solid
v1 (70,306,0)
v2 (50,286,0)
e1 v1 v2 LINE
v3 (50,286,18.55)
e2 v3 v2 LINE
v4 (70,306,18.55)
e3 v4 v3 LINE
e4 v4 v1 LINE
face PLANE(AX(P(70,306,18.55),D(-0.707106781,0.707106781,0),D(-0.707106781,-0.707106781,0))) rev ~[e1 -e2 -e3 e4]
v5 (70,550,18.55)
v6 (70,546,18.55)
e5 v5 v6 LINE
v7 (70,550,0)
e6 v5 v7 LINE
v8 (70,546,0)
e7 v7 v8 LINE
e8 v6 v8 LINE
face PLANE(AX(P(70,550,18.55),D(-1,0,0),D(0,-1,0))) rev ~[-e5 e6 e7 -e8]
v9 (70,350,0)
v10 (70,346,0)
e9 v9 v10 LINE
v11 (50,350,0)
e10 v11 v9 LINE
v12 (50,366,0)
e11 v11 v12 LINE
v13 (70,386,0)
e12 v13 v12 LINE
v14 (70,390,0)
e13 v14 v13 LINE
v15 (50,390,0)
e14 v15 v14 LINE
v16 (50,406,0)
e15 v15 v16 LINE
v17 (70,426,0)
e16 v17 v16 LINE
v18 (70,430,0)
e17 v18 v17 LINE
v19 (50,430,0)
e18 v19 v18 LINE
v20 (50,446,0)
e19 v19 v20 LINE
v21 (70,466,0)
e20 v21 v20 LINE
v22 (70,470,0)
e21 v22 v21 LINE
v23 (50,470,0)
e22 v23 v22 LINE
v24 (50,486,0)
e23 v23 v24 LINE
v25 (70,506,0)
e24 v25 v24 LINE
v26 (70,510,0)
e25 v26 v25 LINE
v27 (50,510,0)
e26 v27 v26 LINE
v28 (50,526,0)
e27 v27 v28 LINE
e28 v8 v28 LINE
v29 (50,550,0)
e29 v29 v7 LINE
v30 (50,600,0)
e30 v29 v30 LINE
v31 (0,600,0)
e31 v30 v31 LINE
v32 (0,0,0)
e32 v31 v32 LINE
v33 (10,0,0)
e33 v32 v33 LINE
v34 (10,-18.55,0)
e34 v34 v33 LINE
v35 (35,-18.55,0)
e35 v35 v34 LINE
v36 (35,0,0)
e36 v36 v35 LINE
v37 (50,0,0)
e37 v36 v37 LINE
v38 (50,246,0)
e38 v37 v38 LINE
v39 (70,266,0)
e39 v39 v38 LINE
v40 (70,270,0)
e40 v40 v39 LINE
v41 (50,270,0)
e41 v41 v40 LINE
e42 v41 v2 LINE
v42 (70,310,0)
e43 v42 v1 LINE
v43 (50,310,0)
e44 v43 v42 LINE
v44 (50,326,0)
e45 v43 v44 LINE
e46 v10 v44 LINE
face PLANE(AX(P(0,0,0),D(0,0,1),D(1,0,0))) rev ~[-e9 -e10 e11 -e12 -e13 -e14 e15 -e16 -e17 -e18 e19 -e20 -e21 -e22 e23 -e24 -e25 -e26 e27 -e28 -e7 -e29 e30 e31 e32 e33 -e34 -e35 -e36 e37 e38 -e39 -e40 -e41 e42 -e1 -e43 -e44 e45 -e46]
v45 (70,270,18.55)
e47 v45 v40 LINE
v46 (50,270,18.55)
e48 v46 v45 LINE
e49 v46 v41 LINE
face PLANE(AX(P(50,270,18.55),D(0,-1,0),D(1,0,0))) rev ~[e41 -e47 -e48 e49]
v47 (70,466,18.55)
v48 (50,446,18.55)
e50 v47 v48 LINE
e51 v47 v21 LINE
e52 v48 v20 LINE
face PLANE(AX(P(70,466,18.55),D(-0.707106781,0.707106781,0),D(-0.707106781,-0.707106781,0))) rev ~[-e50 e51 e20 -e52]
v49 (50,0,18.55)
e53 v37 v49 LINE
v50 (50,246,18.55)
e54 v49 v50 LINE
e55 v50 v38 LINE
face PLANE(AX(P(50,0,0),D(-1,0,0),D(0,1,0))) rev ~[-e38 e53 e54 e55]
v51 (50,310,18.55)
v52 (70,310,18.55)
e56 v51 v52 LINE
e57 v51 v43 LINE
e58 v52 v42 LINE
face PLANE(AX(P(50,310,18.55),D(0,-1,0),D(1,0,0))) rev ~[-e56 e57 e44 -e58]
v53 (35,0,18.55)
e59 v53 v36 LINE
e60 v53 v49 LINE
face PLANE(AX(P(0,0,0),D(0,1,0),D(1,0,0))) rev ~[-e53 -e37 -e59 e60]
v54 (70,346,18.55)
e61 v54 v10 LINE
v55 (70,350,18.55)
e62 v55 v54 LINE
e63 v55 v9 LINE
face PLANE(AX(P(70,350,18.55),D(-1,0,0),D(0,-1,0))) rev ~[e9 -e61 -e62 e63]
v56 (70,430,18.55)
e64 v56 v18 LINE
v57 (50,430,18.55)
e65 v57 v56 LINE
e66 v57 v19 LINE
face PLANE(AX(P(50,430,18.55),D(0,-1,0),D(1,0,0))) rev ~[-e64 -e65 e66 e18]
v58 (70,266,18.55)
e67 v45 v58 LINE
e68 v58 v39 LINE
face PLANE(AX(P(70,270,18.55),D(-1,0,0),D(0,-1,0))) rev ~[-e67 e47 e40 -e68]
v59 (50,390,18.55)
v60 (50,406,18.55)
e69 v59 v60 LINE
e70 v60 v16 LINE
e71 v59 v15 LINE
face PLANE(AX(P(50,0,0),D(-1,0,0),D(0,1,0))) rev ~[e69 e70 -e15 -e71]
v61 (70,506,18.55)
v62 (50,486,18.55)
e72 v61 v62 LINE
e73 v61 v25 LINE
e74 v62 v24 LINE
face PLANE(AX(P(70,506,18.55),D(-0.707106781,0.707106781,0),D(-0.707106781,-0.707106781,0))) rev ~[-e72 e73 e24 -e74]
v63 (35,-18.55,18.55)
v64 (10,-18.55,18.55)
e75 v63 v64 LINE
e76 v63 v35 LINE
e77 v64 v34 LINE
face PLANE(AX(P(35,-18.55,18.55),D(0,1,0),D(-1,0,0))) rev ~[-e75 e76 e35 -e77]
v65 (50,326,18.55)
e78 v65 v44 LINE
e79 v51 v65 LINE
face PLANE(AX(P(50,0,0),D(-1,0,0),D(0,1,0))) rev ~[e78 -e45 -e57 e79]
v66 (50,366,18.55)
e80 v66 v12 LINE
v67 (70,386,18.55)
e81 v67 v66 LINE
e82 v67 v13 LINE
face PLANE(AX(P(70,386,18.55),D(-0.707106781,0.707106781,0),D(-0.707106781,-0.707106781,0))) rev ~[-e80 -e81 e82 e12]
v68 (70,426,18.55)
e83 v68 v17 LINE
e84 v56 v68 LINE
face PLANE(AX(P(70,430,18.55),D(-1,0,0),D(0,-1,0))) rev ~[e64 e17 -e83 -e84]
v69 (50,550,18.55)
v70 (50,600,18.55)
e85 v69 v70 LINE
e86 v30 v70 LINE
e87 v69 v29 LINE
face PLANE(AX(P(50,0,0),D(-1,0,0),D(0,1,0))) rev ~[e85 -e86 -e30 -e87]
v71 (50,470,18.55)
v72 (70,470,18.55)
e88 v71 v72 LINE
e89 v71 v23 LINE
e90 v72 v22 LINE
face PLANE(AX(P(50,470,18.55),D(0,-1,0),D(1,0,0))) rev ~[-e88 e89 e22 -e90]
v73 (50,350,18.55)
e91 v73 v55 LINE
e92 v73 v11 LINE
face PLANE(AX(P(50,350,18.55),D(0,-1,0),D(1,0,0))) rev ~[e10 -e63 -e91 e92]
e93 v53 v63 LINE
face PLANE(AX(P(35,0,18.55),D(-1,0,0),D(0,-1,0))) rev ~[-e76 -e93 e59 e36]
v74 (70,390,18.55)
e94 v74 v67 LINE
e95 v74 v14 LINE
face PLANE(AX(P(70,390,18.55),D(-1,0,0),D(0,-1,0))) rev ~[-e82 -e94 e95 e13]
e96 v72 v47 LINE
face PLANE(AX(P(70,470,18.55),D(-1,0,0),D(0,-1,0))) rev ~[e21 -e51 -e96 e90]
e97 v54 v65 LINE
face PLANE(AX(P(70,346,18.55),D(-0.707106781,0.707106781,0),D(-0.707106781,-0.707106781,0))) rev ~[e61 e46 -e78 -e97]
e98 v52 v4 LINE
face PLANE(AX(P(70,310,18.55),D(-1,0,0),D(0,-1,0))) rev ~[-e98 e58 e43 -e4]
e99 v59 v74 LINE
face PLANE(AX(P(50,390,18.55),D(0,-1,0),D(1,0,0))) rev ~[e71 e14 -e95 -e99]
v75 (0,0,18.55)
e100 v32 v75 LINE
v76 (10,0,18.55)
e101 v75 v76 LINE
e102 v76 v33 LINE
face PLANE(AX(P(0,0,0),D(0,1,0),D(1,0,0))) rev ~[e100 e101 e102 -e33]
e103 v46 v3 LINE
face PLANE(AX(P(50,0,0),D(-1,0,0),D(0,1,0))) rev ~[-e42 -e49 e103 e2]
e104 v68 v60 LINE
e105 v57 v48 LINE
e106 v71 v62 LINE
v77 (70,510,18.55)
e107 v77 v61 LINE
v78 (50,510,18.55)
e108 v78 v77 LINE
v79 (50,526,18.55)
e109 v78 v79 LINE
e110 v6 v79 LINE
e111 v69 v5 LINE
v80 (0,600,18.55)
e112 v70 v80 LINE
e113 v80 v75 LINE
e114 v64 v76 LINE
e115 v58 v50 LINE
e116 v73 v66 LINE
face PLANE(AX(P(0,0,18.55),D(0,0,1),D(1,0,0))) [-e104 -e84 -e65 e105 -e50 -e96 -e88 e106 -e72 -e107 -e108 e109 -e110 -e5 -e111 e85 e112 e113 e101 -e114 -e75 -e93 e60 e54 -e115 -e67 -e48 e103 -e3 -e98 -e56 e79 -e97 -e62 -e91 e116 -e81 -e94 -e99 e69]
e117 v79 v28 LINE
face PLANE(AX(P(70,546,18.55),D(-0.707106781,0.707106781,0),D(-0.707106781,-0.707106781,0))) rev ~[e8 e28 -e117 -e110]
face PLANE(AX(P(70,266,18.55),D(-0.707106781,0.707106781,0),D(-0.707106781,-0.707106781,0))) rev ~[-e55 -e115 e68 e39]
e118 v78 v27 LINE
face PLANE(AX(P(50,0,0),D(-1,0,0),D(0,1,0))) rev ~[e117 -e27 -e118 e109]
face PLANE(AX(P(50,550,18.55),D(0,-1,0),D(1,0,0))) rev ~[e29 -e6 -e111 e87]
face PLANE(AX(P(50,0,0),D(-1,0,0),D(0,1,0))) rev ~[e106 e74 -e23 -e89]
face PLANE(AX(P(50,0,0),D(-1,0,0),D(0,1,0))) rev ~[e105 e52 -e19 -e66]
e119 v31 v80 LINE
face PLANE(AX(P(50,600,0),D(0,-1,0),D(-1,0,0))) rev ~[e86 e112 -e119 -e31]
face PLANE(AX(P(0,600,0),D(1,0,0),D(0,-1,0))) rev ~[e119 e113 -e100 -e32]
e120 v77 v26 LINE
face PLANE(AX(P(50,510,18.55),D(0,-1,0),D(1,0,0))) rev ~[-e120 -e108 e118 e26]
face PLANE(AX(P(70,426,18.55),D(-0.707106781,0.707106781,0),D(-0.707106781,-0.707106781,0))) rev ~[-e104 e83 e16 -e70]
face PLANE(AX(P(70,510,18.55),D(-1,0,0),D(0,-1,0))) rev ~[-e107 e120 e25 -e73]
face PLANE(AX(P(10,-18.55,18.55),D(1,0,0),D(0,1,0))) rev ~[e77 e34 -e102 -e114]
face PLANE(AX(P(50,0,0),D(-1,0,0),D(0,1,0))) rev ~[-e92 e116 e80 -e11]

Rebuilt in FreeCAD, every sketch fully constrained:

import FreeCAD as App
import Part
import Sketcher
Q = App.Units.Quantity


def add_polygon(sketch, points):
    """Adds a closed chain of lines whose ends are joined by coincident constraints."""
    first, n = sketch.GeometryCount, len(points)
    for a, b in zip(points, points[1:] + points[:1]):
        sketch.addGeometry(Part.LineSegment(App.Vector(*a, 0), App.Vector(*b, 0)), False)
    for i in range(n):
        sketch.addConstraint(Sketcher.Constraint("Coincident", first + i, 2, first + (i + 1) % n, 1))

doc = App.newDocument("Part")
params = doc.addObject("Spreadsheet::Sheet", "Params")
for row, (alias, value) in enumerate([
    ("sketch1_width", "50 mm"),
    ("sketch1_height", "600 mm"),
    ("pad1_length", "18.55 mm"),
    ("sketch2_width", "20 mm"),
    ("sketch2_width2", "25 mm"),
    ("sketch2_height", "4 mm"),
    ("sketch2_height2", "18.55 mm"),
    ("pad2_length", "18.55 mm"),
], start=1):
    params.set(f"A{row}", alias)
    params.set(f"B{row}", "=" + value)
    params.setAlias(f"B{row}", alias)

body = doc.addObject("PartDesign::Body", "Body")

# Sketch on XY plane
sketch1 = body.newObject("Sketcher::SketchObject", "Sketch")
sketch1.AttachmentSupport = (doc.getObject("XY_Plane"), [""])
sketch1.MapMode = "FlatFace"
add_polygon(sketch1, [(0, 600), (0, 0), (50, 0), (50, 600)])  # lines 0-3
sketch1.addConstraint(Sketcher.Constraint("Vertical", 0))
sketch1.addConstraint(Sketcher.Constraint("Horizontal", 1))
sketch1.addConstraint(Sketcher.Constraint("Vertical", 2))
sketch1.addConstraint(Sketcher.Constraint("Horizontal", 3))
sketch1.addConstraint(Sketcher.Constraint("Coincident", 0, 2, -1, 1))
sketch1.addConstraint(Sketcher.Constraint("DistanceX", 1, 1, 1, 2, 50.0))
sketch1.addConstraint(Sketcher.Constraint("DistanceY", 0, 2, 0, 1, 600.0))
sketch1.setExpression("Constraints[9]", "Params.sketch1_width")
sketch1.setExpression("Constraints[10]", "Params.sketch1_height")
pad1 = body.newObject("PartDesign::Pad", "Pad")
pad1.Profile = sketch1
pad1.setExpression("Length", "Params.pad1_length")

# Sketch on XY plane
sketch2 = body.newObject("Sketcher::SketchObject", "Sketch001")
sketch2.AttachmentSupport = (doc.getObject("XY_Plane"), [""])
sketch2.MapMode = "FlatFace"
sketch2.AttachmentOffset = App.Placement(App.Vector(0, 0, 18.55), App.Rotation())
add_polygon(sketch2, [(50, 270), (50, 246), (70, 266), (70, 270)])  # lines 0-3
add_polygon(sketch2, [(35, -18.6), (35, 0), (10, 0), (10, -18.6)])  # lines 4-7
add_polygon(sketch2, [(50, 310), (50, 286), (70, 306), (70, 310)])  # lines 8-11
add_polygon(sketch2, [(50, 350), (50, 326), (70, 346), (70, 350)])  # lines 12-15
add_polygon(sketch2, [(70, 550), (50, 550), (50, 526), (70, 546)])  # lines 16-19
add_polygon(sketch2, [(50, 390), (50, 366), (70, 386), (70, 390)])  # lines 20-23
add_polygon(sketch2, [(70, 510), (50, 510), (50, 486), (70, 506)])  # lines 24-27
add_polygon(sketch2, [(50, 430), (50, 406), (70, 426), (70, 430)])  # lines 28-31
add_polygon(sketch2, [(70, 470), (50, 470), (50, 446), (70, 466)])  # lines 32-35
sketch2.addConstraint(Sketcher.Constraint("Vertical", 0))
sketch2.addConstraint(Sketcher.Constraint("Vertical", 2))
sketch2.addConstraint(Sketcher.Constraint("Horizontal", 3))
sketch2.addConstraint(Sketcher.Constraint("Vertical", 4))
sketch2.addConstraint(Sketcher.Constraint("Horizontal", 5))
sketch2.addConstraint(Sketcher.Constraint("Vertical", 6))
sketch2.addConstraint(Sketcher.Constraint("Horizontal", 7))
sketch2.addConstraint(Sketcher.Constraint("Vertical", 8))
sketch2.addConstraint(Sketcher.Constraint("Vertical", 10))
sketch2.addConstraint(Sketcher.Constraint("Horizontal", 11))
sketch2.addConstraint(Sketcher.Constraint("Vertical", 12))
sketch2.addConstraint(Sketcher.Constraint("Vertical", 14))
sketch2.addConstraint(Sketcher.Constraint("Horizontal", 15))
sketch2.addConstraint(Sketcher.Constraint("Horizontal", 16))
sketch2.addConstraint(Sketcher.Constraint("Vertical", 17))
sketch2.addConstraint(Sketcher.Constraint("Vertical", 19))
sketch2.addConstraint(Sketcher.Constraint("Vertical", 20))
sketch2.addConstraint(Sketcher.Constraint("Vertical", 22))
sketch2.addConstraint(Sketcher.Constraint("Horizontal", 23))
sketch2.addConstraint(Sketcher.Constraint("Horizontal", 24))
sketch2.addConstraint(Sketcher.Constraint("Vertical", 25))
sketch2.addConstraint(Sketcher.Constraint("Vertical", 27))
sketch2.addConstraint(Sketcher.Constraint("Vertical", 28))
sketch2.addConstraint(Sketcher.Constraint("Vertical", 30))
sketch2.addConstraint(Sketcher.Constraint("Horizontal", 31))
sketch2.addConstraint(Sketcher.Constraint("Horizontal", 32))
sketch2.addConstraint(Sketcher.Constraint("Vertical", 33))
sketch2.addConstraint(Sketcher.Constraint("Vertical", 35))
sketch2.addConstraint(Sketcher.Constraint("PointOnObject", 4, 2, -1))
sketch2.addConstraint(Sketcher.Constraint("Parallel", 1, 9))
sketch2.addConstraint(Sketcher.Constraint("Parallel", 9, 13))
sketch2.addConstraint(Sketcher.Constraint("Parallel", 13, 18))
sketch2.addConstraint(Sketcher.Constraint("Parallel", 18, 21))
sketch2.addConstraint(Sketcher.Constraint("Parallel", 21, 26))
sketch2.addConstraint(Sketcher.Constraint("Parallel", 26, 29))
sketch2.addConstraint(Sketcher.Constraint("Parallel", 29, 34))
sketch2.addConstraint(Sketcher.Constraint("Vertical", 3, 2, 8, 2))
sketch2.addConstraint(Sketcher.Constraint("Vertical", 2, 2, 9, 2))
sketch2.addConstraint(Sketcher.Constraint("Vertical", 11, 2, 12, 2))
sketch2.addConstraint(Sketcher.Constraint("Vertical", 10, 2, 13, 2))
sketch2.addConstraint(Sketcher.Constraint("Vertical", 15, 2, 16, 2))
sketch2.addConstraint(Sketcher.Constraint("Vertical", 14, 2, 18, 2))
sketch2.addConstraint(Sketcher.Constraint("Vertical", 17, 2, 20, 2))
sketch2.addConstraint(Sketcher.Constraint("Vertical", 19, 2, 21, 2))
sketch2.addConstraint(Sketcher.Constraint("Vertical", 23, 2, 24, 2))
sketch2.addConstraint(Sketcher.Constraint("Vertical", 22, 2, 26, 2))
sketch2.addConstraint(Sketcher.Constraint("Vertical", 25, 2, 28, 2))
sketch2.addConstraint(Sketcher.Constraint("Vertical", 27, 2, 29, 2))
sketch2.addConstraint(Sketcher.Constraint("Vertical", 31, 2, 32, 2))
sketch2.addConstraint(Sketcher.Constraint("Vertical", 30, 2, 34, 2))
sketch2.addConstraint(Sketcher.Constraint("Equal", 0, 8))
sketch2.addConstraint(Sketcher.Constraint("Equal", 8, 12))
sketch2.addConstraint(Sketcher.Constraint("Equal", 12, 17))
sketch2.addConstraint(Sketcher.Constraint("Equal", 17, 20))
sketch2.addConstraint(Sketcher.Constraint("Equal", 20, 25))
sketch2.addConstraint(Sketcher.Constraint("Equal", 25, 28))
sketch2.addConstraint(Sketcher.Constraint("Equal", 28, 33))
sketch2.addConstraint(Sketcher.Constraint("DistanceX", 3, 2, 3, 1, 20.0))
sketch2.addConstraint(Sketcher.Constraint("DistanceX", 5, 2, 5, 1, 25.0))
sketch2.addConstraint(Sketcher.Constraint("DistanceY", 2, 1, 2, 2, 4.0))
sketch2.addConstraint(Sketcher.Constraint("Angle", 1, Q("45 deg")))
sketch2.addConstraint(Sketcher.Constraint("DistanceX", -1, 1, 0, 2, 50.0))
sketch2.addConstraint(Sketcher.Constraint("DistanceX", -1, 1, 5, 2, 10.0))
sketch2.addConstraint(Sketcher.Constraint("DistanceY", 1, 2, 8, 2, 20.0))
sketch2.addConstraint(Sketcher.Constraint("DistanceY", 9, 2, 12, 2, 20.0))
sketch2.addConstraint(Sketcher.Constraint("DistanceY", 13, 2, 20, 2, 20.0))
sketch2.addConstraint(Sketcher.Constraint("DistanceY", 24, 2, 16, 2, 40.0))
sketch2.addConstraint(Sketcher.Constraint("DistanceY", 21, 2, 28, 2, 20.0))
sketch2.addConstraint(Sketcher.Constraint("DistanceY", 32, 2, 24, 2, 40.0))
sketch2.addConstraint(Sketcher.Constraint("DistanceY", 31, 2, 32, 2, 40.0))
sketch2.addConstraint(Sketcher.Constraint("DistanceY", 4, 1, 4, 2, 18.55))
sketch2.addConstraint(Sketcher.Constraint("DistanceY", -1, 1, 0, 2, 246.0))
sketch2.setExpression("Constraints[93]", "Params.sketch2_width")
sketch2.setExpression("Constraints[94]", "Params.sketch2_width2")
sketch2.setExpression("Constraints[95]", "Params.sketch2_height")
sketch2.setExpression("Constraints[106]", "Params.sketch2_height2")
pad2 = body.newObject("PartDesign::Pad", "Pad001")
pad2.Profile = sketch2
pad2.setExpression("Length", "Params.pad2_length")
pad2.Reversed = True

doc.recompute()
